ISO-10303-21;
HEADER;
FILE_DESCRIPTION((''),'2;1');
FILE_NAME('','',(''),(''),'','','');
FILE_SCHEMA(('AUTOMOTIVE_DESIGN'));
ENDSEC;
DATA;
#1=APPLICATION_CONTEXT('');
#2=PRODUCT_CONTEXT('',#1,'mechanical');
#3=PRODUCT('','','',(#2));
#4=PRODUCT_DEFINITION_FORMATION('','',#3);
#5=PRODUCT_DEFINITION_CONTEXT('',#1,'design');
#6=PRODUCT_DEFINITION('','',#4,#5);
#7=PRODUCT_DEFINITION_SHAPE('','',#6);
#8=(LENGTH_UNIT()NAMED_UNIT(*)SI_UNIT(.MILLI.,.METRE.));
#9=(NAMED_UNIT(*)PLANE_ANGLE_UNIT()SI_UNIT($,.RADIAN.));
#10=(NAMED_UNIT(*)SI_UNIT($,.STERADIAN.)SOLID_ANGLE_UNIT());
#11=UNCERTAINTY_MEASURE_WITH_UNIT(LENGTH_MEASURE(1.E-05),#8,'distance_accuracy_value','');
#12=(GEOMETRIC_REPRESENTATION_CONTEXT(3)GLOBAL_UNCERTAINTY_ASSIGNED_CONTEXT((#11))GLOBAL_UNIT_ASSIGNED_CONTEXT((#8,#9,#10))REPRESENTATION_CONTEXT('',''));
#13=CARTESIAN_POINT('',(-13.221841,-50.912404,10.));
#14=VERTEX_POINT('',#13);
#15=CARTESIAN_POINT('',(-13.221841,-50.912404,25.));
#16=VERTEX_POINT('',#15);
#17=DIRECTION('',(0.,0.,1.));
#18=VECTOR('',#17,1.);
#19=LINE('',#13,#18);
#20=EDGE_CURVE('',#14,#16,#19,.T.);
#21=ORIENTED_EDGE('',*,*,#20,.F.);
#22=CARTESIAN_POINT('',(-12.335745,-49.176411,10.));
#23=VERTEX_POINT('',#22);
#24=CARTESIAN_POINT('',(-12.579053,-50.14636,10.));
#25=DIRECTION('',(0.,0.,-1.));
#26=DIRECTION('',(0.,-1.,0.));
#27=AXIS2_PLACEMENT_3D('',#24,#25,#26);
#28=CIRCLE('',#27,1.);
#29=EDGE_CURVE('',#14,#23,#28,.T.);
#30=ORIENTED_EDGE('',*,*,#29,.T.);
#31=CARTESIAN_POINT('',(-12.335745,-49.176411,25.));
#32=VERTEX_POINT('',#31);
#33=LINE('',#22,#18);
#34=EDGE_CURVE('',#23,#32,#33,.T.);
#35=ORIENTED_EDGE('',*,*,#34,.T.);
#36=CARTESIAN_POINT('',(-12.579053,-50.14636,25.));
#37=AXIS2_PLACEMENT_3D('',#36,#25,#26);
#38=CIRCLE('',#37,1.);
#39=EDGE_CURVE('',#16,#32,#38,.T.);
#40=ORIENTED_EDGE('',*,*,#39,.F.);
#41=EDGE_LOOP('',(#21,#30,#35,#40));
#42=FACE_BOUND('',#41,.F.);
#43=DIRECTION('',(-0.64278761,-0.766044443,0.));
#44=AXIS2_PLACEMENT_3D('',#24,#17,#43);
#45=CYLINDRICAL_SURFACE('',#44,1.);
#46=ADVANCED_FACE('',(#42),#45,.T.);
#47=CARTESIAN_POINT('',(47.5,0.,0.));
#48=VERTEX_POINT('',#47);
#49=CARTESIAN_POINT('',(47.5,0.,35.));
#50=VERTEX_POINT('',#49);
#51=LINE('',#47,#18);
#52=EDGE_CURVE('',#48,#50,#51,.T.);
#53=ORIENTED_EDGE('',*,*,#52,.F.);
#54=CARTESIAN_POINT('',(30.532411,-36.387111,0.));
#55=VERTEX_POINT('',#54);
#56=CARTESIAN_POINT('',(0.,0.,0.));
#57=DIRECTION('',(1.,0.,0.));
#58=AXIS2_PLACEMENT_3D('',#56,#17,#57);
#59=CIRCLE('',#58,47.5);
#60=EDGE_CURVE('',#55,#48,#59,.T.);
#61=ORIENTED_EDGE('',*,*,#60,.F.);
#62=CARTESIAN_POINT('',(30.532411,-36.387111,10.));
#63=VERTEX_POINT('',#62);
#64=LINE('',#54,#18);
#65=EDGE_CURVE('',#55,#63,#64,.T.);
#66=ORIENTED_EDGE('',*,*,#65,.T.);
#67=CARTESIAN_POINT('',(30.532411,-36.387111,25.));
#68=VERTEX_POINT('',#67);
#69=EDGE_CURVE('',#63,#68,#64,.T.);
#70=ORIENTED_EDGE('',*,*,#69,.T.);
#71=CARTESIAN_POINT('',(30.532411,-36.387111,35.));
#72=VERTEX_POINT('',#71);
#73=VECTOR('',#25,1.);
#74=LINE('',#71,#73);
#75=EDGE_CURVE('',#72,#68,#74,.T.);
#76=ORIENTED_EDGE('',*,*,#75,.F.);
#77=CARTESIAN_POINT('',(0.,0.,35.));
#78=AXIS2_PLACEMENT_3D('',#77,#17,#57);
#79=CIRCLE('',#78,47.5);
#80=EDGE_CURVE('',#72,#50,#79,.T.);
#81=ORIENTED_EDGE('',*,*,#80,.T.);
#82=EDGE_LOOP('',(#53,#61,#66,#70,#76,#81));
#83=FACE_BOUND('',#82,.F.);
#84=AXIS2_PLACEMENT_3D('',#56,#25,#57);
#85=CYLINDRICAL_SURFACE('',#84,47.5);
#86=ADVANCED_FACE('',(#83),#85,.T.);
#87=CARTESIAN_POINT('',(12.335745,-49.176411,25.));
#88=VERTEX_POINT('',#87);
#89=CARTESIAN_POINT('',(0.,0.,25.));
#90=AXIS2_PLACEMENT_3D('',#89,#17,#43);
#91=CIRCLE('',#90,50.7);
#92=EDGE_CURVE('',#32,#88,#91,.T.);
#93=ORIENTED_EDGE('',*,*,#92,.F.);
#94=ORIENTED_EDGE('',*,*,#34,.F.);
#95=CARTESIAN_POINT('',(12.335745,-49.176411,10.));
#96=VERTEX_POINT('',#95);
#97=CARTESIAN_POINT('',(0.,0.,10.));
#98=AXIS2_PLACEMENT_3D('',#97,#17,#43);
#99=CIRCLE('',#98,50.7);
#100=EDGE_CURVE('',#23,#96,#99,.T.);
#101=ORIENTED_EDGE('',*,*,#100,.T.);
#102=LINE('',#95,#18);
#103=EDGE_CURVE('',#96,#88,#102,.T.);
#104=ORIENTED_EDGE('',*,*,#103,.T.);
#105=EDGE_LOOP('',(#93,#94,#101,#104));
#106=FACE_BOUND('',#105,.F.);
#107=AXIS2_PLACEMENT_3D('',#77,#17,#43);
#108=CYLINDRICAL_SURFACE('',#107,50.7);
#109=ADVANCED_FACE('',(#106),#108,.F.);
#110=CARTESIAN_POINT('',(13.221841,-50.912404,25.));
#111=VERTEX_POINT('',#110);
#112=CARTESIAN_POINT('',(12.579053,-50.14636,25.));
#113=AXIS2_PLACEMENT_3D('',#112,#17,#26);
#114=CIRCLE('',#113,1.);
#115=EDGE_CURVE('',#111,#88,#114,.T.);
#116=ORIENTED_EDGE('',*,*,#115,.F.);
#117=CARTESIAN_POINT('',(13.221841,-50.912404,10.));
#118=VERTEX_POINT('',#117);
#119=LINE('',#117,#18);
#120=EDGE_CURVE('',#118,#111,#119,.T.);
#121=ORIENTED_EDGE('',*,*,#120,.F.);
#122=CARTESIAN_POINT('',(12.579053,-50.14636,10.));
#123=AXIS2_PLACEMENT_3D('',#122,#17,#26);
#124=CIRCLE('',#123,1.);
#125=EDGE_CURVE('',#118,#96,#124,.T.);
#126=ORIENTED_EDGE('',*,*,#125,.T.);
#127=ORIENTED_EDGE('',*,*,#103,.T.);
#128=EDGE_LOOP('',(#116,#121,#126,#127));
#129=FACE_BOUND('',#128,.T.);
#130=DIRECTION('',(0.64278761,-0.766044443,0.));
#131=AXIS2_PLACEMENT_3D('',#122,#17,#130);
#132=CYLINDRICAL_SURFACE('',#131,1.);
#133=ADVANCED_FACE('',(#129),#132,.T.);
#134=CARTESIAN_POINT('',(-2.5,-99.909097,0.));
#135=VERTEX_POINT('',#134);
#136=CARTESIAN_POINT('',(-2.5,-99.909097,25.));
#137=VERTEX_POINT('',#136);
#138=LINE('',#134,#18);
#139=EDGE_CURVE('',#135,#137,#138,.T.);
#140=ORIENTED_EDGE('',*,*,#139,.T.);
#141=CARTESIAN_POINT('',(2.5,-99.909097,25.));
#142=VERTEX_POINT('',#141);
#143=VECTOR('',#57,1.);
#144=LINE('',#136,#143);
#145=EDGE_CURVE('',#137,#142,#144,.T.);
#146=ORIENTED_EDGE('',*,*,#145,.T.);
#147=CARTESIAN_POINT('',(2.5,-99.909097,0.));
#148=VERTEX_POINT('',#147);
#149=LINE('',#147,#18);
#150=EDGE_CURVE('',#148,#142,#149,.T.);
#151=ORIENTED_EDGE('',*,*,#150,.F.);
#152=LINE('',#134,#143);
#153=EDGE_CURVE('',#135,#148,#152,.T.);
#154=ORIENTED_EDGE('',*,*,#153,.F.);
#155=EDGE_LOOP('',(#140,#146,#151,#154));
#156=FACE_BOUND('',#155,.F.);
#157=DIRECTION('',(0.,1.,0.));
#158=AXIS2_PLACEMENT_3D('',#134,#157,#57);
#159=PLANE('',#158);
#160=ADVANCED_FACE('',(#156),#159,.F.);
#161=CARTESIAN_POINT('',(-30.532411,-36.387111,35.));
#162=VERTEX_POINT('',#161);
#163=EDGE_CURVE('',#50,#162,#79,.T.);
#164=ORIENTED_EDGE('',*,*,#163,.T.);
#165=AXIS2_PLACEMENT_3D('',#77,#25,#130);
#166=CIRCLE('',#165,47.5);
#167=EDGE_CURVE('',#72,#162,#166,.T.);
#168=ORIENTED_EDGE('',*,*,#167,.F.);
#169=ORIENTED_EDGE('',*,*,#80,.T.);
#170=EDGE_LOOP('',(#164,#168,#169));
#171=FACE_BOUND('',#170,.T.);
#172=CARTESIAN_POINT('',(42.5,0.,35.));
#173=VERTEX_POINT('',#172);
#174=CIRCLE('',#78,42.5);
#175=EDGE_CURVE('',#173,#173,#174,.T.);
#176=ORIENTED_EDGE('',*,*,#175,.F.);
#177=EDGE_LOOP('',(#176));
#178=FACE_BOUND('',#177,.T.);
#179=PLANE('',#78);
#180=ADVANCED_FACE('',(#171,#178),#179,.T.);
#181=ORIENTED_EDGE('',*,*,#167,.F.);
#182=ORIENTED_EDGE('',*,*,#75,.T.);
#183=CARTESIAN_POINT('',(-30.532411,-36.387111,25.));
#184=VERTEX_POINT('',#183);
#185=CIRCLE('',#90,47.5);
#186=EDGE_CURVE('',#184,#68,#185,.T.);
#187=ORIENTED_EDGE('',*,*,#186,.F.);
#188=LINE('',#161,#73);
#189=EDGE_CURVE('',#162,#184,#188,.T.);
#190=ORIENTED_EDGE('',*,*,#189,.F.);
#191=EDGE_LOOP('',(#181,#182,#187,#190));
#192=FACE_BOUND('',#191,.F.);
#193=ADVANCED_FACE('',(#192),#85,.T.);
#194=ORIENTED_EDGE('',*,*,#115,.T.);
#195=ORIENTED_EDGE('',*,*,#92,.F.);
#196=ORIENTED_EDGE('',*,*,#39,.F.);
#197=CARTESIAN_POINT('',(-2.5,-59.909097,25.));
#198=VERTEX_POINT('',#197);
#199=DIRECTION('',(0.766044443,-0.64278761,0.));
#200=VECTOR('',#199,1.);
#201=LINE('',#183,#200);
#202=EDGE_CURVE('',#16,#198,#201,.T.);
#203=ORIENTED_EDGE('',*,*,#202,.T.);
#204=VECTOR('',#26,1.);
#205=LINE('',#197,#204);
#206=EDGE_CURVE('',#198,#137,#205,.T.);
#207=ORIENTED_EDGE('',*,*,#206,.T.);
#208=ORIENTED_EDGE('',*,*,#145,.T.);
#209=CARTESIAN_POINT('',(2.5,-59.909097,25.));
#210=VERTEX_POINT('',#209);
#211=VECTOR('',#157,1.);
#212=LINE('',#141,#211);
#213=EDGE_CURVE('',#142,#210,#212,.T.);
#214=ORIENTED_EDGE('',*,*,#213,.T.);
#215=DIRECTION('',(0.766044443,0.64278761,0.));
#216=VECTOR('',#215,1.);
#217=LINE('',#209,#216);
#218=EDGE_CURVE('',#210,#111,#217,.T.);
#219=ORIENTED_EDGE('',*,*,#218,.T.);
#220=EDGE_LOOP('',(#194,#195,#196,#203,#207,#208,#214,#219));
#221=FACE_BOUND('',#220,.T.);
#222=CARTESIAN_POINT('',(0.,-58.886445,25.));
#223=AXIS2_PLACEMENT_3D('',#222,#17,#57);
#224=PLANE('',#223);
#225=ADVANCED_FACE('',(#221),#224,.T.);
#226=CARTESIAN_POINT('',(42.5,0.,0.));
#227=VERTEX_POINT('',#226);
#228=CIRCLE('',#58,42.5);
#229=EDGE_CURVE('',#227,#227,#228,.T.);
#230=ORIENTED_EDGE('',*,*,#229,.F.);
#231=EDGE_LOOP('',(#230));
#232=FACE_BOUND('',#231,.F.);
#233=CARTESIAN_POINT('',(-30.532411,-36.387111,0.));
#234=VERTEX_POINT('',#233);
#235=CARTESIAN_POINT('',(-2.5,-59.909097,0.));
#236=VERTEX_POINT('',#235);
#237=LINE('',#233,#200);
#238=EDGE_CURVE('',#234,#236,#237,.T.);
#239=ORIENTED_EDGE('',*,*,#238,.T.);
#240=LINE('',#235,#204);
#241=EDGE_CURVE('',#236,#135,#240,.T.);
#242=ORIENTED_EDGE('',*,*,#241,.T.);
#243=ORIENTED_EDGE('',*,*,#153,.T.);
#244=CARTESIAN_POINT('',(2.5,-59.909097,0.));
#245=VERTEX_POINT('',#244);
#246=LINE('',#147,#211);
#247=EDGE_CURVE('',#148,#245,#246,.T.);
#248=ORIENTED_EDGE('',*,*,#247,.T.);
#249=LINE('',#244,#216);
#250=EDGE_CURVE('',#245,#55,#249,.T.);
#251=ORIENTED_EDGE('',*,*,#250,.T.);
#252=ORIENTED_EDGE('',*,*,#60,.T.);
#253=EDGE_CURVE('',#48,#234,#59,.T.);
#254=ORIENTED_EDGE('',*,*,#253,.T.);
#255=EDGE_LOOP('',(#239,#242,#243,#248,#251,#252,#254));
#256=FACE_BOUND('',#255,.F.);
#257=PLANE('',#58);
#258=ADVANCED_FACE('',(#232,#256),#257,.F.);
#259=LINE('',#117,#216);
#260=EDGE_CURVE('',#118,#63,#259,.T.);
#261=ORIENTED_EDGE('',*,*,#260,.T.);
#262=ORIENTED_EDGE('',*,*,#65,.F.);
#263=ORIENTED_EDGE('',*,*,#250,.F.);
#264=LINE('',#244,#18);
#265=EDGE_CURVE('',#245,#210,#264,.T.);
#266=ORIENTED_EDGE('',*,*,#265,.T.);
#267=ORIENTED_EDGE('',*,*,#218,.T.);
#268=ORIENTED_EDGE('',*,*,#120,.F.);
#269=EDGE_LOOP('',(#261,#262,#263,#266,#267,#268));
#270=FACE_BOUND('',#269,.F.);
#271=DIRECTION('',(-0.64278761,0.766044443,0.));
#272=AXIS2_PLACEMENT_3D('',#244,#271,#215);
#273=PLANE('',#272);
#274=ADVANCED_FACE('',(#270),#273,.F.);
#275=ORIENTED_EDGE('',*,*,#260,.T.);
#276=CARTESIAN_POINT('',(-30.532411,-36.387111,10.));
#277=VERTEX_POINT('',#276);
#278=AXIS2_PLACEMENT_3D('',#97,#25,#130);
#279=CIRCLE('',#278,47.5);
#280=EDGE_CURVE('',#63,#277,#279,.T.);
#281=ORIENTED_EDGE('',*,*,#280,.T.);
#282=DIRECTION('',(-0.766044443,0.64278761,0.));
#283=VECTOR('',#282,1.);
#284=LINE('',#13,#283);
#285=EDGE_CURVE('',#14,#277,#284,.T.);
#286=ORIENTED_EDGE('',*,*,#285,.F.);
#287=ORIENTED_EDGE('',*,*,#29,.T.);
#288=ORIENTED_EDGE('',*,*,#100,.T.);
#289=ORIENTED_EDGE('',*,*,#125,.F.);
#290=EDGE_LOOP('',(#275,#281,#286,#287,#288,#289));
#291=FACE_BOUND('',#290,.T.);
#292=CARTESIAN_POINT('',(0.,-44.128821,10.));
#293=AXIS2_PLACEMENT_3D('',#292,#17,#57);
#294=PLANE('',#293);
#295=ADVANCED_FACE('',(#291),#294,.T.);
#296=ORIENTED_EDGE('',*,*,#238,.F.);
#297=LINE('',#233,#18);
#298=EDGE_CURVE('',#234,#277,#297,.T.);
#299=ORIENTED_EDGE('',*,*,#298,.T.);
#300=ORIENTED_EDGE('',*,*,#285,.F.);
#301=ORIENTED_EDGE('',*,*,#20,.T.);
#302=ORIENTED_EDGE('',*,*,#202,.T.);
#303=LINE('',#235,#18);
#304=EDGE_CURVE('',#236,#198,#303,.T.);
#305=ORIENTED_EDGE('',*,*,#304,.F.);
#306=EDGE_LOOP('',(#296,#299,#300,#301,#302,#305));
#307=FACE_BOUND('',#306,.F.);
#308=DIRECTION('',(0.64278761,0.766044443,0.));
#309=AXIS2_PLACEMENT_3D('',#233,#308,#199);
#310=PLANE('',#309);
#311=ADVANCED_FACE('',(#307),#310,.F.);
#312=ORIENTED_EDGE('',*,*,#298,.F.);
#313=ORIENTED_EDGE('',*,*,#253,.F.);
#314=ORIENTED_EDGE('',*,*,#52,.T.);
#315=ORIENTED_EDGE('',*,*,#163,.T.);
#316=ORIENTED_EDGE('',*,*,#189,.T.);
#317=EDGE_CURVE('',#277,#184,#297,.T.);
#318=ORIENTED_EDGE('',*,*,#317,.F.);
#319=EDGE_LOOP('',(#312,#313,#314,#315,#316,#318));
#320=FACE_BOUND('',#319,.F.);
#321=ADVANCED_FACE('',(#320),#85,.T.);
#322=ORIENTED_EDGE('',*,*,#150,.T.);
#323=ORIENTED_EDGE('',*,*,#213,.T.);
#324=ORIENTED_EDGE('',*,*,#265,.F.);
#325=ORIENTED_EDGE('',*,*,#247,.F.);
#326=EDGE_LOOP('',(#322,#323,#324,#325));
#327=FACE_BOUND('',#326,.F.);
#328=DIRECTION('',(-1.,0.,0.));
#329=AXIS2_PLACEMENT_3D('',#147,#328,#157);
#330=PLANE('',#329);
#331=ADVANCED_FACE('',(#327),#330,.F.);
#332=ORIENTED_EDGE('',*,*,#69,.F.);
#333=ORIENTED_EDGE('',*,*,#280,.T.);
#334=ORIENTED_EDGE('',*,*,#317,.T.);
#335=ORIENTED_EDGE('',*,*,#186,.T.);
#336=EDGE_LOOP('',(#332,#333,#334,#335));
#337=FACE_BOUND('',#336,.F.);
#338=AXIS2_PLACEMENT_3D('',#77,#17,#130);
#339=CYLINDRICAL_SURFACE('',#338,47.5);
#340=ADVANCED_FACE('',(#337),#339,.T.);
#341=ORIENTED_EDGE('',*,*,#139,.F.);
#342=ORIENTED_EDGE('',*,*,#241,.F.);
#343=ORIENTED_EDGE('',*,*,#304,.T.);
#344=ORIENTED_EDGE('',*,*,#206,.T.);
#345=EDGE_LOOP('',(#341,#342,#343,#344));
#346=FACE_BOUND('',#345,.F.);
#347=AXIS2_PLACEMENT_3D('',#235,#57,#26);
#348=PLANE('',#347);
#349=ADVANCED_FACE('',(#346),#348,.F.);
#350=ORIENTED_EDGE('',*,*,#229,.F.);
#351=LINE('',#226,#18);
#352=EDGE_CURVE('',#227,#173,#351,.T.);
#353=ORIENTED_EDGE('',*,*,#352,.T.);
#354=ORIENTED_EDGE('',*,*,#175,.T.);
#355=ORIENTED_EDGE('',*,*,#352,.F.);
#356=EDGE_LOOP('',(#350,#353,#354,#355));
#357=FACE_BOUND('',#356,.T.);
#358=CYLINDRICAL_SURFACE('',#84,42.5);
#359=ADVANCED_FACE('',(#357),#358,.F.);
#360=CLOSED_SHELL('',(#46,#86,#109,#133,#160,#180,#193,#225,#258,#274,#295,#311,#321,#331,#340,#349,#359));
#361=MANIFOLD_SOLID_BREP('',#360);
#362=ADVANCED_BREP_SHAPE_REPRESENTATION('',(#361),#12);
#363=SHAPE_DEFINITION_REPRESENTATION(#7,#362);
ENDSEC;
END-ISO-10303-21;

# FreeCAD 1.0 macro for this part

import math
import FreeCAD as App
import Part
import Sketcher
from FreeCAD import Vector
Q = App.Units.Quantity


def edges_at(feature, points):
    """Names of the edges that pass closest to the given points."""
    edges = feature.Shape.Edges
    near = lambda p: min(range(len(edges)), key=lambda i: edges[i].distToShape(Part.Vertex(*p))[0])
    return sorted({f"Edge{near(p) + 1}" for p in points})

doc = App.newDocument("Part")
body = doc.addObject("PartDesign::Body", "Body")

sketch1 = body.newObject("Sketcher::SketchObject", "Sketch")
sketch1.AttachmentSupport = (doc.getObject("XY_Plane"), [""])
sketch1.MapMode = "FlatFace"
sketch1.addGeometry([
    Part.Circle(Vector(0, 0, 0), Vector(0, 0, 1), 48),
    Part.Circle(Vector(0, 0, 0), Vector(0, 0, 1), 42),
], False)
sketch1.addConstraint([
    Sketcher.Constraint("Coincident", 0, 3, -1, 1),
    Sketcher.Constraint("Coincident", 1, 3, -1, 1),
    Sketcher.Constraint("Diameter", 0, Q("95 mm")),
    Sketcher.Constraint("Diameter", 1, Q("85 mm")),
])
pad1 = body.newObject("PartDesign::Pad", "Pad")
pad1.Profile = sketch1
pad1.Length = 35

sketch2 = body.newObject("Sketcher::SketchObject", "Sketch001")
sketch2.AttachmentSupport = (doc.getObject("XY_Plane"), [""])
sketch2.MapMode = "FlatFace"
sketch2.addGeometry([
    Part.LineSegment(Vector(0, -48, 0), Vector(-31, -36, 0)),
    Part.LineSegment(Vector(-31, -36, 0), Vector(-2, -60, 0)),
    Part.LineSegment(Vector(-2, -60, 0), Vector(-2, -100, 0)),
    Part.LineSegment(Vector(-2, -100, 0), Vector(2, -100, 0)),
    Part.LineSegment(Vector(2, -100, 0), Vector(2, -60, 0)),
    Part.LineSegment(Vector(2, -60, 0), Vector(31, -36, 0)),
    Part.LineSegment(Vector(31, -36, 0), Vector(0, -48, 0)),
], False)
sketch2.addConstraint([
    Sketcher.Constraint("Coincident", 0, 2, 1, 1),
    Sketcher.Constraint("Coincident", 1, 2, 2, 1),
    Sketcher.Constraint("Coincident", 2, 2, 3, 1),
    Sketcher.Constraint("Coincident", 3, 2, 4, 1),
    Sketcher.Constraint("Coincident", 4, 2, 5, 1),
    Sketcher.Constraint("Coincident", 5, 2, 6, 1),
    Sketcher.Constraint("Coincident", 6, 2, 0, 1),
    Sketcher.Constraint("Vertical", 2),
    Sketcher.Constraint("Horizontal", 3),
    Sketcher.Constraint("Vertical", 4),
    Sketcher.Constraint("Symmetric", 1, 2, 4, 2, -2),
    Sketcher.Constraint("Symmetric", 0, 2, 5, 2, -2),
    Sketcher.Constraint("PointOnObject", 6, 2, -2),
    Sketcher.Constraint("DistanceX", 3, 1, 3, 2, Q("5 mm")),
    Sketcher.Constraint("DistanceY", 2, 2, 2, 1, Q("40 mm")),
    Sketcher.Constraint("Angle", 0, Q("160 deg")),
    Sketcher.Constraint("Angle", 1, Q("-40 deg")),
    Sketcher.Constraint("DistanceY", 6, 2, -1, 1, Q("47.5 mm")),
    Sketcher.Constraint("DistanceX", 0, 2, -1, 1, Q("30.532411 mm")),
])
pad2 = body.newObject("PartDesign::Pad", "Pad001")
pad2.Profile = sketch2
pad2.Length = 25

sketch3 = body.newObject("Sketcher::SketchObject", "Sketch002")
sketch3.AttachmentSupport = (doc.getObject("XY_Plane"), [""])
sketch3.MapMode = "FlatFace"
sketch3.AttachmentOffset = App.Placement(Vector(0, 0, 35), App.Rotation())
sketch3.addGeometry([
    Part.ArcOfCircle(Part.Circle(Vector(0, 0, 0), Vector(0, 0, 1), 47.5), math.radians(-130), math.radians(-50)),
    Part.LineSegment(Vector(-30.5, -36.4, 0), Vector(-32.6, -38.8, 0)),
    Part.ArcOfCircle(Part.Circle(Vector(0, 0, 0), Vector(0, 0, 1), 50.7), math.radians(-130), math.radians(-50)),
    Part.LineSegment(Vector(32.6, -38.8, 0), Vector(30.5, -36.4, 0)),
], False)
sketch3.addConstraint([
    Sketcher.Constraint("Coincident", 0, 1, 1, 1),
    Sketcher.Constraint("Coincident", 1, 2, 2, 1),
    Sketcher.Constraint("Coincident", 2, 2, 3, 1),
    Sketcher.Constraint("Coincident", 3, 2, 0, 2),
    Sketcher.Constraint("Coincident", 0, 3, -1, 1),
    Sketcher.Constraint("Coincident", 2, 3, -1, 1),
    Sketcher.Constraint("Horizontal", 1, 2, 2, 2),
    Sketcher.Constraint("Horizontal", 0, 1, 3, 2),
    Sketcher.Constraint("Radius", 0, Q("47.5 mm")),
    Sketcher.Constraint("Radius", 2, Q("50.7 mm")),
    Sketcher.Constraint("Angle", 1, Q("-130 deg")),
    Sketcher.Constraint("DistanceX", 0, 1, -1, 1, Q("30.532411 mm")),
])
pocket1 = body.newObject("PartDesign::Pocket", "Pocket")
pocket1.Profile = sketch3
pocket1.Length = 25
doc.recompute()

fillet = body.newObject("PartDesign::Fillet", "Fillet")
fillet.Base = (pocket1, edges_at(pocket1, [(16.953, -47.782, 17.5), (-16.953, -47.782, 17.5)]))
fillet.Radius = 1

doc.recompute()
